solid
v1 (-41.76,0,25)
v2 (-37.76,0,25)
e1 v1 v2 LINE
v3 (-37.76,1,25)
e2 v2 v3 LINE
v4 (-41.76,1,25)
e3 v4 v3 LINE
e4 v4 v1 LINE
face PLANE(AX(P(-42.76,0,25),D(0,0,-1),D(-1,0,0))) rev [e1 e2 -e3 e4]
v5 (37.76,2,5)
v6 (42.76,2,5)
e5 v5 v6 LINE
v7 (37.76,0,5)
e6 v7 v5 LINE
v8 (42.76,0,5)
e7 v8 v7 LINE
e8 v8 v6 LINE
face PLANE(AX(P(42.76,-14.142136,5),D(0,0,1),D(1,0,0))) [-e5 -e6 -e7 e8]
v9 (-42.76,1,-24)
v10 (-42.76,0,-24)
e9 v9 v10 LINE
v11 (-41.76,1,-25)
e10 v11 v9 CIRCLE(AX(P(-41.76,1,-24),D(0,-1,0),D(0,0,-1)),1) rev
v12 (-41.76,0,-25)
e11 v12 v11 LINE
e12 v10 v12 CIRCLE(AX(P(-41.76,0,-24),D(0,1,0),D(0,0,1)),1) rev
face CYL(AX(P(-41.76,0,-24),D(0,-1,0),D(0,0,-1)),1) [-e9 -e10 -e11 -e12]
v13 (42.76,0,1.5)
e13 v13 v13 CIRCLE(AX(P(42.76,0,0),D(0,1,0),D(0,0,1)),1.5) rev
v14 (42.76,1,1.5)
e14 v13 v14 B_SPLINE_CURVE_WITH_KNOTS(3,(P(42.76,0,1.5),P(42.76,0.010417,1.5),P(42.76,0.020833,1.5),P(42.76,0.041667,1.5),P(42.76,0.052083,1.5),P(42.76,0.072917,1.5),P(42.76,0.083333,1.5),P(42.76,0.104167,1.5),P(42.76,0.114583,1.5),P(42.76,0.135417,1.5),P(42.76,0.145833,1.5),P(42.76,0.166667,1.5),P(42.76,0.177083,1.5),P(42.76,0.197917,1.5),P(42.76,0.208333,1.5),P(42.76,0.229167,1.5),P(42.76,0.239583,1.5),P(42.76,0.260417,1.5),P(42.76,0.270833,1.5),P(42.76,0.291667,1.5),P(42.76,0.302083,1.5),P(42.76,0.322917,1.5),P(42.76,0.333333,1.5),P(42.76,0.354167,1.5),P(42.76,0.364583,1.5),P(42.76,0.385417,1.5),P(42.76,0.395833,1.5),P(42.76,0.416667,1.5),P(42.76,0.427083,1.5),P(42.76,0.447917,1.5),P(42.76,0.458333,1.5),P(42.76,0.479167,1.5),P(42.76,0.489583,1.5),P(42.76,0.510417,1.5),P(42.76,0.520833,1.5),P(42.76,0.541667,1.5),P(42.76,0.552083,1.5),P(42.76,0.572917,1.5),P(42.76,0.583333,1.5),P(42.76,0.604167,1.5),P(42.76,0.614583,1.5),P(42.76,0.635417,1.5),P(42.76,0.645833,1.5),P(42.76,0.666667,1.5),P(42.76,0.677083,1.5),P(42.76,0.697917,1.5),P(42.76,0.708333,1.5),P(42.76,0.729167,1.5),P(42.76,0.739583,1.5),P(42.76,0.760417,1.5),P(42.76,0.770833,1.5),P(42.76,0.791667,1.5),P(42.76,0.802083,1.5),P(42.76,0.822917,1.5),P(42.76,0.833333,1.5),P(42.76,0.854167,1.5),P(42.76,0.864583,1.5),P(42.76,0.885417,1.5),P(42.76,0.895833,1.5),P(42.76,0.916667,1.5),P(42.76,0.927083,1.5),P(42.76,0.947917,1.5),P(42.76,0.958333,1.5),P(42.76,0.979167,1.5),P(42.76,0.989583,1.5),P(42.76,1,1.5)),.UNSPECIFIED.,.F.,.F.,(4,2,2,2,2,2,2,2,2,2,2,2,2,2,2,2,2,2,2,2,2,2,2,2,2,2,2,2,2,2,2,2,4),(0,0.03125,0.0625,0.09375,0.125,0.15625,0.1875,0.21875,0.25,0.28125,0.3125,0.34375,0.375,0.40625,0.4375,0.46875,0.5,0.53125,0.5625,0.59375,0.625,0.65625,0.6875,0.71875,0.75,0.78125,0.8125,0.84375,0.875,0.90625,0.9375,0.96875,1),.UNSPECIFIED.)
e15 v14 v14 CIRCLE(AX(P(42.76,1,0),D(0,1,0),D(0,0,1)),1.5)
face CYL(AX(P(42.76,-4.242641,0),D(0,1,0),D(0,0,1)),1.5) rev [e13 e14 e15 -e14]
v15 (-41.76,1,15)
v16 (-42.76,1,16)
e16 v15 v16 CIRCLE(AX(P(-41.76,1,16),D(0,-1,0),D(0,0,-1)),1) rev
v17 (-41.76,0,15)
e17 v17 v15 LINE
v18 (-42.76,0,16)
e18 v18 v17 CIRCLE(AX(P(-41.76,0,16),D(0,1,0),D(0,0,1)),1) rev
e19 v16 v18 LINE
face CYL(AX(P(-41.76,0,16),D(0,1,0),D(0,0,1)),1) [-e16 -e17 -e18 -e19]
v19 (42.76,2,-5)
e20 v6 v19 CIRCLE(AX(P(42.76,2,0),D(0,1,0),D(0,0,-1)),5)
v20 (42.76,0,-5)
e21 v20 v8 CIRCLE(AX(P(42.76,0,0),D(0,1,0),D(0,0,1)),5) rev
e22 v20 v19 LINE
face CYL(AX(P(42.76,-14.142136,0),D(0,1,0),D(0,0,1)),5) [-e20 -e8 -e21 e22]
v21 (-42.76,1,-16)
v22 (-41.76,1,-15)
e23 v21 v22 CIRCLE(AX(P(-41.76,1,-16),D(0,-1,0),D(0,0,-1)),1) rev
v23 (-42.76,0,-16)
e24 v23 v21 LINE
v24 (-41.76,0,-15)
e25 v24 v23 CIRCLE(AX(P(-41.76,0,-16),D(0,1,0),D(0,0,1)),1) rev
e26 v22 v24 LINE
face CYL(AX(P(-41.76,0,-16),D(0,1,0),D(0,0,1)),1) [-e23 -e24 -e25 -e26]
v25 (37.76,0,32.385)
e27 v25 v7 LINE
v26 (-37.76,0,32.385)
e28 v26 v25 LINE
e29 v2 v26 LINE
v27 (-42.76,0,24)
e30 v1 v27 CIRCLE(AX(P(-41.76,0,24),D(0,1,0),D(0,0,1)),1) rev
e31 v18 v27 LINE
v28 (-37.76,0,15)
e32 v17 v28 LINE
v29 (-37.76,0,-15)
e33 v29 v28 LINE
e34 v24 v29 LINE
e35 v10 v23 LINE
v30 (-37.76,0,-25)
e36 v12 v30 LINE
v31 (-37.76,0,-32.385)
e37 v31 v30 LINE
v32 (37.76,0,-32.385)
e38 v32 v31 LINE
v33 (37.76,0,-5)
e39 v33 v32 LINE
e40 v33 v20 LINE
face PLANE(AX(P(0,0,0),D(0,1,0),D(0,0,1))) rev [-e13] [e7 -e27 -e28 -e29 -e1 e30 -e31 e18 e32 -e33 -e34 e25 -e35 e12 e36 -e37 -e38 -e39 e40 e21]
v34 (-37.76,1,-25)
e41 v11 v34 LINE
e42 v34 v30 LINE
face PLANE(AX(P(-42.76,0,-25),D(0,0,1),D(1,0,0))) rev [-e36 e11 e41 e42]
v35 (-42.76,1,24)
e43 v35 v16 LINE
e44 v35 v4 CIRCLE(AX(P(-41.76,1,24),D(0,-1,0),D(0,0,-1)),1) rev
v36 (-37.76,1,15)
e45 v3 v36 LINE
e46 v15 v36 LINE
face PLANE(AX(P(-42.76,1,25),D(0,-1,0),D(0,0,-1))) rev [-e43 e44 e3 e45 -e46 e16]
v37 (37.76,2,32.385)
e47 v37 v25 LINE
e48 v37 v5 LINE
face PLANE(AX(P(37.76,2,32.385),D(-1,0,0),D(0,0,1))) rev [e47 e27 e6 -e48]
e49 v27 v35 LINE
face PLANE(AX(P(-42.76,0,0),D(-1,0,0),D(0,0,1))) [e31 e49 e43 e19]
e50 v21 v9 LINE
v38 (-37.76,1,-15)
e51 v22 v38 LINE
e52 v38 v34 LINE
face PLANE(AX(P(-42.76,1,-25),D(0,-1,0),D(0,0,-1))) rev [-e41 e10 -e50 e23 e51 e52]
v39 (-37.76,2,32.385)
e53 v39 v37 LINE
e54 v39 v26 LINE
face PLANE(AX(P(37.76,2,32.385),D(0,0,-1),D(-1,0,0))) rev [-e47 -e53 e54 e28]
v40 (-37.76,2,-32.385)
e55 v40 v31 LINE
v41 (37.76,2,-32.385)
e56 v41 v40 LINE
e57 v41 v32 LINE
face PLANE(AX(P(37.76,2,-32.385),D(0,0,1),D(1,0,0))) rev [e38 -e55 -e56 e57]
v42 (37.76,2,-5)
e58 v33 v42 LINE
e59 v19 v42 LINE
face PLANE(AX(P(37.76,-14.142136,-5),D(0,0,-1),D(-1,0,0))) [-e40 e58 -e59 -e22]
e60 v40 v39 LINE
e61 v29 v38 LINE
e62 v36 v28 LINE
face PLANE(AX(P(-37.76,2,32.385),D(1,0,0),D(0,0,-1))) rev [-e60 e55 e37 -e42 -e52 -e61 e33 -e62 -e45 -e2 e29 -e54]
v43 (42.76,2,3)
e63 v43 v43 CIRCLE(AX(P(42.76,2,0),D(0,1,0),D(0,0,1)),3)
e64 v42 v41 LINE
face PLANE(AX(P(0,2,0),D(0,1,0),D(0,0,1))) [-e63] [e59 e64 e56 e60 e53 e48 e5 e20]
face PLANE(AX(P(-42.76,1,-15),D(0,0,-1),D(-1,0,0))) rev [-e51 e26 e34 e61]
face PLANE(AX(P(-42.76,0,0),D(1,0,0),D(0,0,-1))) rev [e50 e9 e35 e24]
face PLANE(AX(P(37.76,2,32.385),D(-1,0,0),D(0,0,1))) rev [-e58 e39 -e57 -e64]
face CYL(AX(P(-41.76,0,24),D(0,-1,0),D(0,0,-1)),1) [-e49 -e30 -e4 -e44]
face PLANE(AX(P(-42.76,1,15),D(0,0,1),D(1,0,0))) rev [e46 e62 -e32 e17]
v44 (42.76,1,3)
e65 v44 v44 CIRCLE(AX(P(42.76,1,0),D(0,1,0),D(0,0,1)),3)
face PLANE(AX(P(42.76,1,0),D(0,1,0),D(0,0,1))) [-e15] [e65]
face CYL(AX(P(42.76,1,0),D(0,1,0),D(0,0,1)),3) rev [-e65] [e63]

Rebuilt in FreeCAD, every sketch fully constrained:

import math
import FreeCAD as App
import Part
import Sketcher


def edges_at(feature, points):
    """Names of the edges that pass closest to the given points."""
    edges = feature.Shape.Edges
    near = lambda p: min(range(len(edges)), key=lambda i: edges[i].distToShape(Part.Vertex(*p))[0])
    return sorted({f"Edge{near(p) + 1}" for p in points})


def add_polygon(sketch, points):
    """Adds a closed chain of lines whose ends are joined by coincident constraints."""
    first, n = sketch.GeometryCount, len(points)
    for a, b in zip(points, points[1:] + points[:1]):
        sketch.addGeometry(Part.LineSegment(App.Vector(*a, 0), App.Vector(*b, 0)), False)
    for i in range(n):
        sketch.addConstraint(Sketcher.Constraint("Coincident", first + i, 2, first + (i + 1) % n, 1))

doc = App.newDocument("Part")
body = doc.addObject("PartDesign::Body", "Body")

sketch1 = doc.addObject("Sketcher::SketchObject", "Sketch")
body.addObject(sketch1)
sketch1.AttachmentSupport = (doc.XZ_Plane, [""])
sketch1.MapMode = "FlatFace"
add_polygon(sketch1, [(-38, -32), (-38, 32), (38, 32), (38, -32)])
sketch1.addConstraint([
    Sketcher.Constraint("Vertical", 0),
    Sketcher.Constraint("Horizontal", 1),
    Sketcher.Constraint("Vertical", 2),
    Sketcher.Constraint("Horizontal", 3),
    Sketcher.Constraint("Symmetric", 0, 2, 2, 2, -1, 1),
    Sketcher.Constraint("DistanceX", 1, 1, 1, 2, 75.52),
    Sketcher.Constraint("DistanceY", 0, 1, 0, 2, 64.77),
])
pad1 = doc.addObject("PartDesign::Pad", "Pad")
body.addObject(pad1)
pad1.Profile = sketch1
pad1.Length = 2
pad1.Reversed = True

sketch2 = doc.addObject("Sketcher::SketchObject", "Sketch001")
body.addObject(sketch2)
sketch2.AttachmentSupport = (doc.XZ_Plane, [""])
sketch2.MapMode = "FlatFace"
sketch2.AttachmentOffset = App.Placement(App.Vector(0, 0, -2), App.Rotation())
sketch2.addGeometry([
    Part.LineSegment(App.Vector(43, -5, 0), App.Vector(38, -5, 0)),
    Part.LineSegment(App.Vector(38, -5, 0), App.Vector(38, 5, 0)),
    Part.LineSegment(App.Vector(38, 5, 0), App.Vector(43, 5, 0)),
    Part.ArcOfCircle(Part.Circle(App.Vector(43, 0, 0), App.Vector(0, 0, 1), 5), math.radians(-90), math.radians(90)),
], False)
sketch2.addConstraint([
    Sketcher.Constraint("Coincident", 0, 2, 1, 1),
    Sketcher.Constraint("Coincident", 1, 2, 2, 1),
    Sketcher.Constraint("Tangent", 2, 2, 3, 2),
    Sketcher.Constraint("Tangent", 3, 1, 0, 1),
    Sketcher.Constraint("Horizontal", 0),
    Sketcher.Constraint("Vertical", 1),
    Sketcher.Constraint("Horizontal", 2),
    Sketcher.Constraint("PointOnObject", 3, 3, -1),
    Sketcher.Constraint("Radius", 3, 5.0),
    Sketcher.Constraint("DistanceX", 0, 2, 0, 1, 5.0),
    Sketcher.Constraint("DistanceX", -1, 1, 3, 3, 42.76),
])
pad2 = doc.addObject("PartDesign::Pad", "Pad001")
body.addObject(pad2)
pad2.Profile = sketch2
pad2.Length = 2

sketch3 = doc.addObject("Sketcher::SketchObject", "Sketch002")
body.addObject(sketch3)
sketch3.AttachmentSupport = (doc.YZ_Plane, [""])
sketch3.MapMode = "FlatFace"
sketch3.AttachmentOffset = App.Placement(App.Vector(0, 0, -37.76), App.Rotation())
add_polygon(sketch3, [(1, -25), (0, -25), (0, -15), (1, -15)])
add_polygon(sketch3, [(1, 15), (0, 15), (0, 25), (1, 25)])
sketch3.addConstraint([
    Sketcher.Constraint("Horizontal", 0),
    Sketcher.Constraint("Vertical", 1),
    Sketcher.Constraint("Horizontal", 2),
    Sketcher.Constraint("Vertical", 3),
    Sketcher.Constraint("Horizontal", 4),
    Sketcher.Constraint("Vertical", 5),
    Sketcher.Constraint("Horizontal", 6),
    Sketcher.Constraint("Vertical", 7),
    Sketcher.Constraint("Symmetric", 1, 2, 4, 2, -1, 1),
    Sketcher.Constraint("Symmetric", 0, 2, 5, 2, -1),
    Sketcher.Constraint("Vertical", 3, 2, 6, 2),
    Sketcher.Constraint("DistanceX", 0, 2, 0, 1, 1.0),
    Sketcher.Constraint("DistanceY", 1, 1, 1, 2, 10.0),
    Sketcher.Constraint("DistanceY", 0, 2, -1, 1, 25.0),
])
pad3 = doc.addObject("PartDesign::Pad", "Pad002")
body.addObject(pad3)
pad3.Profile = sketch3
pad3.Length = 5
pad3.Reversed = True

sketch4 = doc.addObject("Sketcher::SketchObject", "Sketch003")
body.addObject(sketch4)
sketch4.AttachmentSupport = (doc.XZ_Plane, [""])
sketch4.MapMode = "FlatFace"
sketch4.AttachmentOffset = App.Placement(App.Vector(0, 0, -2), App.Rotation())
sketch4.addGeometry(Part.Circle(App.Vector(42.8, 0, 0), App.Vector(0, 0, 1), 1.5), False)
sketch4.addConstraint([
    Sketcher.Constraint("PointOnObject", 0, 3, -1),
    Sketcher.Constraint("Diameter", 0, 3.0),
    Sketcher.Constraint("DistanceX", -1, 1, 0, 3, 42.76),
])
pocket1 = doc.addObject("PartDesign::Pocket", "Pocket")
body.addObject(pocket1)
pocket1.Profile = sketch4
pocket1.Length = 2
pocket1.Reversed = True

sketch5 = doc.addObject("Sketcher::SketchObject", "Sketch004")
body.addObject(sketch5)
sketch5.AttachmentSupport = (doc.XZ_Plane, [""])
sketch5.MapMode = "FlatFace"
sketch5.AttachmentOffset = App.Placement(App.Vector(0, 0, -2), App.Rotation())
sketch5.addGeometry([
    Part.Circle(App.Vector(42.8, 0, 0), App.Vector(0, 0, 1), 3),
    Part.Circle(App.Vector(42.8, 0, 0), App.Vector(0, 0, 1), 1.5),
], False)
sketch5.addConstraint([
    Sketcher.Constraint("Coincident", 1, 3, 0, 3),
    Sketcher.Constraint("PointOnObject", 0, 3, -1),
    Sketcher.Constraint("Diameter", 0, 6.0),
    Sketcher.Constraint("Diameter", 1, 3.0),
    Sketcher.Constraint("DistanceX", -1, 1, 0, 3, 42.76),
])
pocket2 = doc.addObject("PartDesign::Pocket", "Pocket001")
body.addObject(pocket2)
pocket2.Profile = sketch5
pocket2.Length = 1
pocket2.Reversed = True
doc.recompute()

fillet = doc.addObject("PartDesign::Fillet", "Fillet")
body.addObject(fillet)
fillet.Base = (pocket2, edges_at(pocket2, [
    (-42.76, 0.5, -15),
    (-42.76, 0.5, -25),
    (-42.76, 0.5, 25),
    (-42.76, 0.5, 15),
]))
fillet.Radius = 1

doc.recompute()
